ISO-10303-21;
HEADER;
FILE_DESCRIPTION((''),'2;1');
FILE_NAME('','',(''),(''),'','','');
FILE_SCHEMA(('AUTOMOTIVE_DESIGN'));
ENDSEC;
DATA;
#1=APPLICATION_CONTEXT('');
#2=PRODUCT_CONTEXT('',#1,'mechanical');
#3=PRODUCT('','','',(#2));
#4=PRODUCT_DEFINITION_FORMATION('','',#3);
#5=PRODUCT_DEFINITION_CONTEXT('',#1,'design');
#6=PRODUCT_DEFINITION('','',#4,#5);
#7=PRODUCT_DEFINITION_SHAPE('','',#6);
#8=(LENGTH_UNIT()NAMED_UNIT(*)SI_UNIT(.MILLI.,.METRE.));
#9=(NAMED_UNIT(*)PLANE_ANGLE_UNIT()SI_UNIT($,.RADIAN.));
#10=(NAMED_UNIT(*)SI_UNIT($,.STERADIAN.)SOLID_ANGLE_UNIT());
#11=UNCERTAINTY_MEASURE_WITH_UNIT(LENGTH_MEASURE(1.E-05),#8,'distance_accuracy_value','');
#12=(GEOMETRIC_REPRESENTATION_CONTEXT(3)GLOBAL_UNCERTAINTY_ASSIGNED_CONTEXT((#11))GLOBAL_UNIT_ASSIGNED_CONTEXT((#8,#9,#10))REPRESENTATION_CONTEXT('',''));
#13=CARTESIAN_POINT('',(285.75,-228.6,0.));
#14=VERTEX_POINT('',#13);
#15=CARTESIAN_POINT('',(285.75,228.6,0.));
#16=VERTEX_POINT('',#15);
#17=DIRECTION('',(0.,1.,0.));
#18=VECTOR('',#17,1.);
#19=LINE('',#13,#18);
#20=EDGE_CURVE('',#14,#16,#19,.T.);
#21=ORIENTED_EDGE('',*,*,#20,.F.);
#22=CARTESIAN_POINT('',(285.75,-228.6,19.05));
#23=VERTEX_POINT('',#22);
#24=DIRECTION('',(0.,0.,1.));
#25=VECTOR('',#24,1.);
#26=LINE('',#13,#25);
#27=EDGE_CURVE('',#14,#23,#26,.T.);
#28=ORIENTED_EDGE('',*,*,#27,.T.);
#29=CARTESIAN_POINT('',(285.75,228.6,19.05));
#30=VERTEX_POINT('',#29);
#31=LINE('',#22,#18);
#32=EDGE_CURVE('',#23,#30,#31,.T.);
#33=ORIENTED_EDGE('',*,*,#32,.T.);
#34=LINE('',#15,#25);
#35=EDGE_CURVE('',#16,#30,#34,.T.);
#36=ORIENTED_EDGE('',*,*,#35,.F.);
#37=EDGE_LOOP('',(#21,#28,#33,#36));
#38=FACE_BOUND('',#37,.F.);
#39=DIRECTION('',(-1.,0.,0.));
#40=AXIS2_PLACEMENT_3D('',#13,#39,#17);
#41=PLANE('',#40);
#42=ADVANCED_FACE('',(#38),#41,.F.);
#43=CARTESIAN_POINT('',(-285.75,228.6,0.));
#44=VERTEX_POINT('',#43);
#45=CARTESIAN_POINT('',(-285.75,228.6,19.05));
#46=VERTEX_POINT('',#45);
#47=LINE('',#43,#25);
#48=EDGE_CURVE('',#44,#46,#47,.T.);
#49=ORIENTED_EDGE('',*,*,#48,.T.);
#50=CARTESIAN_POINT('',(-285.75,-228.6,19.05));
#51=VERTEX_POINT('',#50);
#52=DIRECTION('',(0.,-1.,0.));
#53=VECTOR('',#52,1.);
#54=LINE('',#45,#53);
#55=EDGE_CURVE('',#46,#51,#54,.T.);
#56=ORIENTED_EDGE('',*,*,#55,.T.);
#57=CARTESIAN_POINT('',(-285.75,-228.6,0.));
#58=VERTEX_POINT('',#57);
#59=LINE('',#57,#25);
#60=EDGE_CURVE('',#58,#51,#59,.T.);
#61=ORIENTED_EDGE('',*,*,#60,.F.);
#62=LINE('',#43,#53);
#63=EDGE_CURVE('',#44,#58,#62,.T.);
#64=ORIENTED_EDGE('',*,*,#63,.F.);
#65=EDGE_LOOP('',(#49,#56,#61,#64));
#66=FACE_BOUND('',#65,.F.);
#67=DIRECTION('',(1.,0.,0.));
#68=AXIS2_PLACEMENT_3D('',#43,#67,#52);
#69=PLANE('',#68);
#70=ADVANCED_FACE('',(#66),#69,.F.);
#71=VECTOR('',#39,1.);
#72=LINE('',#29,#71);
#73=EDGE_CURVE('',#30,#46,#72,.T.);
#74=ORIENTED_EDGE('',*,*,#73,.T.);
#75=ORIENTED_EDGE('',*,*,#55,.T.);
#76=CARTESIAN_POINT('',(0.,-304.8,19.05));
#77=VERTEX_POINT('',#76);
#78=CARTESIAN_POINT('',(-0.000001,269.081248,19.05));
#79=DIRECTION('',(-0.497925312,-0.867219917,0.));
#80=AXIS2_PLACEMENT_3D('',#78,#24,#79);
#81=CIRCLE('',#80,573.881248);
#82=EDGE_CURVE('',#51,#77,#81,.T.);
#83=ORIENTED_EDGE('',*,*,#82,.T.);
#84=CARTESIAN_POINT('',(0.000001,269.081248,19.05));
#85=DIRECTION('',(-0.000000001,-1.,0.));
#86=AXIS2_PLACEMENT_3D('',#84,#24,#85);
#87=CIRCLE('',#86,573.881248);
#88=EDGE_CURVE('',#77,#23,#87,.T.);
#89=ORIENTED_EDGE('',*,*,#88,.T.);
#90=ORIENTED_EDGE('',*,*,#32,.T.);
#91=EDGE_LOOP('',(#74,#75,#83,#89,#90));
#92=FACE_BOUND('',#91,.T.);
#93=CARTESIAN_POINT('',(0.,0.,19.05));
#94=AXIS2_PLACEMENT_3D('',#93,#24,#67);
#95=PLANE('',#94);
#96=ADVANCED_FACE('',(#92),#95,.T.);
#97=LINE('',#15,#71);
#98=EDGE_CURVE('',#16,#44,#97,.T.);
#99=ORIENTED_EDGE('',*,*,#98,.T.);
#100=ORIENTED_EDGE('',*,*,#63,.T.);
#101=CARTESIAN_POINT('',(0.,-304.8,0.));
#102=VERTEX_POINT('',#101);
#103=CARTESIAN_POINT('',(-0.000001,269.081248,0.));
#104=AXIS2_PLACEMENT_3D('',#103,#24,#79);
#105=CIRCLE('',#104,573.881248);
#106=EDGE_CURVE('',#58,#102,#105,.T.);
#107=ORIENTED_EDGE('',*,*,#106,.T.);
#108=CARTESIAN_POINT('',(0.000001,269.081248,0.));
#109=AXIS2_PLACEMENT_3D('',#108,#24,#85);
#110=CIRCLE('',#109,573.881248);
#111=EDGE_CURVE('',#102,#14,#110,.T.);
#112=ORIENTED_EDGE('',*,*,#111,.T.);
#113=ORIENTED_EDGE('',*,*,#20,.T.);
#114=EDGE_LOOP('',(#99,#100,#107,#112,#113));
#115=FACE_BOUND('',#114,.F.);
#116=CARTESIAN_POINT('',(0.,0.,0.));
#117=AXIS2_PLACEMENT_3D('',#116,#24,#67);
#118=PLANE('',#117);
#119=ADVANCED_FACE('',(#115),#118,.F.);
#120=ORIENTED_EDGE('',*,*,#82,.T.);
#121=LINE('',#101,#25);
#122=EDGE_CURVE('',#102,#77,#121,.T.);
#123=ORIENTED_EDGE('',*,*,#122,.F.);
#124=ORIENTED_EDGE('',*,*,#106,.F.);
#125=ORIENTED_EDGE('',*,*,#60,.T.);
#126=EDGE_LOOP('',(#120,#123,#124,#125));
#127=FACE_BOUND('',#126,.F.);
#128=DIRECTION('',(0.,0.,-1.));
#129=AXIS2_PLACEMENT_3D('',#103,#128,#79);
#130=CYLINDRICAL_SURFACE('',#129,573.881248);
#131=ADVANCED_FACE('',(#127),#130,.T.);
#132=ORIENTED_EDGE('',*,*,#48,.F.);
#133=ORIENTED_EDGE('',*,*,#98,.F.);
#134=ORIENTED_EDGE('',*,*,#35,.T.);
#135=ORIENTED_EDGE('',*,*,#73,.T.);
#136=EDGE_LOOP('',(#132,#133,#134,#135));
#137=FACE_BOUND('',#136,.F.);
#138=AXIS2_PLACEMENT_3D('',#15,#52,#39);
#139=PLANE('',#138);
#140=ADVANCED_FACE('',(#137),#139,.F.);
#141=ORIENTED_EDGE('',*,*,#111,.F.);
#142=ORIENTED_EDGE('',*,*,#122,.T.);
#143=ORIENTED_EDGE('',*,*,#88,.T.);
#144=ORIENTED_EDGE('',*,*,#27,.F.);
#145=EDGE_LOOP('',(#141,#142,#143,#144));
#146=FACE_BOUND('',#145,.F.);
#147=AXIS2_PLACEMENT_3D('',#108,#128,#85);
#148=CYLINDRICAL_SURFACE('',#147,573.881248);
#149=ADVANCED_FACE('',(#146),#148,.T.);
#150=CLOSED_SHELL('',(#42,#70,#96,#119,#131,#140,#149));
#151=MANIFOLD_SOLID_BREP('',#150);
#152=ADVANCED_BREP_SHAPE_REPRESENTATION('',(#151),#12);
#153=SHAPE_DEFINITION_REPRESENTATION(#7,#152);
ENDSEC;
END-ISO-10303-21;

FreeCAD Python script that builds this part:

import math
import FreeCAD as App
import Part
import Sketcher
Q = App.Units.Quantity

doc = App.newDocument("Part")
params = doc.addObject("Spreadsheet::Sheet", "Params")
for row, (alias, value) in enumerate([
    ("sketch1_height", "18 in"),
    ("sketch1_width", "22.5 in"),
    ("pad1_length", "0.75 in"),
], start=1):
    params.set(f"A{row}", alias)
    params.set(f"B{row}", "=" + value)
    params.setAlias(f"B{row}", alias)

body = doc.addObject("PartDesign::Body", "Body")

# Sketch on XY plane
sketch1 = body.newObject("Sketcher::SketchObject", "Sketch")
sketch1.AttachmentSupport = (doc.getObject("XY_Plane"), [""])
sketch1.MapMode = "FlatFace"
sketch1.addGeometry([
    Part.LineSegment(App.Vector(285.75, 228.6, 0), App.Vector(-285.75, 228.6, 0)),  # 0
    Part.LineSegment(App.Vector(-285.75, 228.6, 0), App.Vector(-285.75, -228.6, 0)),  # 1
    Part.ArcOfCircle(Part.Circle(App.Vector(-0.000001, 269.081248, 0), App.Vector(0, 0, 1), 573.881248), math.radians(-119.862834), math.radians(-90)),  # 2
    Part.ArcOfCircle(Part.Circle(App.Vector(0.000001, 269.081248, 0), App.Vector(0, 0, 1), 573.881248), math.radians(-90), math.radians(-60.137166)),  # 3
    Part.LineSegment(App.Vector(285.75, -228.6, 0), App.Vector(285.75, 228.6, 0)),  # 4
], False)
sketch1.addConstraint([
    Sketcher.Constraint("Coincident", 0, 2, 1, 1),
    Sketcher.Constraint("Coincident", 1, 2, 2, 1),
    Sketcher.Constraint("Coincident", 2, 2, 3, 1),
    Sketcher.Constraint("Coincident", 3, 2, 4, 1),
    Sketcher.Constraint("Coincident", 4, 2, 0, 1),
    Sketcher.Constraint("Horizontal", 0),
    Sketcher.Constraint("Vertical", 1),
    Sketcher.Constraint("Vertical", 4),
    Sketcher.Constraint("Coincident", 3, 3, 2, 3),
    Sketcher.Constraint("Symmetric", 1, 2, 4, 2, -1, 1),
    Sketcher.Constraint("PointOnObject", 2, 3, -2),
    Sketcher.Constraint("PointOnObject", 2, 2, -2),
    Sketcher.Constraint("DistanceY", 1, 2, 1, 1, Q("18 in")),
    Sketcher.Constraint("DistanceX", 0, 2, 0, 1, Q("22.5 in")),
    Sketcher.Constraint("DistanceY", 2, 2, -1, 1, Q("12 in")),
])
sketch1.setExpression("Constraints[12]", "Params.sketch1_height")
sketch1.setExpression("Constraints[13]", "Params.sketch1_width")
pad1 = body.newObject("PartDesign::Pad", "Pad")
pad1.Profile = sketch1
pad1.setExpression("Length", "Params.pad1_length")

doc.recompute()
